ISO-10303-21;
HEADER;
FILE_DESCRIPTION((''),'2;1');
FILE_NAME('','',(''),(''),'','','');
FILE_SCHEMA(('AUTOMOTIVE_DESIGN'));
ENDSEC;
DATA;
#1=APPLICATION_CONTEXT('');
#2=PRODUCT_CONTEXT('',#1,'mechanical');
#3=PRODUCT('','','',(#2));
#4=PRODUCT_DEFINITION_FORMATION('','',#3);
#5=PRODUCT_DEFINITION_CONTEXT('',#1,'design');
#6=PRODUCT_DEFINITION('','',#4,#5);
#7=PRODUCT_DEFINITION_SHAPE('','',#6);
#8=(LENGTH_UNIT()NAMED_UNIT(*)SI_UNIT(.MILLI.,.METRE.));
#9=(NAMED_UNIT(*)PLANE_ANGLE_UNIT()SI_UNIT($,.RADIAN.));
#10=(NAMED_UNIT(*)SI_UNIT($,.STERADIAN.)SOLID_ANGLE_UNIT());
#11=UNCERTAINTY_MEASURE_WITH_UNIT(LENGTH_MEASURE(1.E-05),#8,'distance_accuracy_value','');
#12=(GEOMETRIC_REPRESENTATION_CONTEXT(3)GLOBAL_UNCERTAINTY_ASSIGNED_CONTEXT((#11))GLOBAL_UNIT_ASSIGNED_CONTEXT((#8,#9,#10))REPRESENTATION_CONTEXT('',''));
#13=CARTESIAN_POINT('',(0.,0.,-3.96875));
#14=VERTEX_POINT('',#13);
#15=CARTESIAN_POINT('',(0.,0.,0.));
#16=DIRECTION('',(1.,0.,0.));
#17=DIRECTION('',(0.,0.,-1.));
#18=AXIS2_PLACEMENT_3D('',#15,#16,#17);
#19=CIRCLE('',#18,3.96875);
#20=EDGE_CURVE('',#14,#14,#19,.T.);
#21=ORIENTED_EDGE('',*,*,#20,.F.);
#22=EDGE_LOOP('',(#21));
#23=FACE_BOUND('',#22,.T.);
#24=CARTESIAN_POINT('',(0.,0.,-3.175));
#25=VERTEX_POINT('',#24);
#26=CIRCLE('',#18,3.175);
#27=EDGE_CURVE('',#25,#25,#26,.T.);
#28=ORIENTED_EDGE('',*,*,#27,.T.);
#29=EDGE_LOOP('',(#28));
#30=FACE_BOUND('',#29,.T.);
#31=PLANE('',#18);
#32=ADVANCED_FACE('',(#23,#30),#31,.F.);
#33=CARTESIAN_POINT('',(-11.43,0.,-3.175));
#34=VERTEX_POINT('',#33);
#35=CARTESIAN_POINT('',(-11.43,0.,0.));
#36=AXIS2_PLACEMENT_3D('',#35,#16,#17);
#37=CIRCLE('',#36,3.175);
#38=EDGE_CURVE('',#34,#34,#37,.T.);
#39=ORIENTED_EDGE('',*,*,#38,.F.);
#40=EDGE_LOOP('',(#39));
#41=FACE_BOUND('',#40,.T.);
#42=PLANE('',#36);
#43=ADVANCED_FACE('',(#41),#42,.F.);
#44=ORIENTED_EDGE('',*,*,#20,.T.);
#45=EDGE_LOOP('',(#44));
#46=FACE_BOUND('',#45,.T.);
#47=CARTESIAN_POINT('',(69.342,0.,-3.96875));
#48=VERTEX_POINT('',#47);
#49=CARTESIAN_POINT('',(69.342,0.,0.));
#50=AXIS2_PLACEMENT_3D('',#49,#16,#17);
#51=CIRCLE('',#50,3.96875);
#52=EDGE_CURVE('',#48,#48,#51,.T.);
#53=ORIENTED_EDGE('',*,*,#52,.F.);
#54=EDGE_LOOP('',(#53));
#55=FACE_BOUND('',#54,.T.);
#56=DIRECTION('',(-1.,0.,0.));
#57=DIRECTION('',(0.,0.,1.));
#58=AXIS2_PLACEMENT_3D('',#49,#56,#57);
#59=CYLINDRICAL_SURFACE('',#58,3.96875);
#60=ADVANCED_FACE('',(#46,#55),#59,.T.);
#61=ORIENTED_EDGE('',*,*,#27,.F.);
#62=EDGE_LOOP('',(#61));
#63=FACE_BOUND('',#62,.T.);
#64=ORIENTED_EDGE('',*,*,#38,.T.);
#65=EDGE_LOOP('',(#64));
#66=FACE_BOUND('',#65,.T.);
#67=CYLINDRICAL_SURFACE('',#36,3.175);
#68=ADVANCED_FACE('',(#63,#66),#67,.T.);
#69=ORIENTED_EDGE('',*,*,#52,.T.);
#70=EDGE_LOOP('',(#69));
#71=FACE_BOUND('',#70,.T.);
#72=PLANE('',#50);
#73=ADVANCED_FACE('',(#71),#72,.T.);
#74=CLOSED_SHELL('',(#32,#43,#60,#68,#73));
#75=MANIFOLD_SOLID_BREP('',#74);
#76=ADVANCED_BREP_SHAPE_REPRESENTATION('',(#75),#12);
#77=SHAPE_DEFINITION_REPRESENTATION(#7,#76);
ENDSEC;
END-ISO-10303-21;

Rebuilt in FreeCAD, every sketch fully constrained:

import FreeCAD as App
import Part
import Sketcher
Q = App.Units.Quantity

doc = App.newDocument("Part")
body = doc.addObject("PartDesign::Body", "Body")

# Sketch on YZ plane
sketch1 = doc.addObject("Sketcher::SketchObject", "Sketch")
body.addObject(sketch1)
sketch1.AttachmentSupport = (doc.YZ_Plane, [""])
sketch1.MapMode = "FlatFace"
sketch1.addGeometry(Part.Circle(App.Vector(0, 0, 0), App.Vector(0, 0, 1), 4), False)
sketch1.addConstraint(Sketcher.Constraint("Coincident", 0, 3, -1, 1))
sketch1.addConstraint(Sketcher.Constraint("Diameter", 0, Q("0.3125 in")))
pad1 = doc.addObject("PartDesign::Pad", "Pad")
body.addObject(pad1)
pad1.Profile = sketch1
pad1.Length = Q("2.73 in")

# Sketch on YZ plane
sketch2 = doc.addObject("Sketcher::SketchObject", "Sketch001")
body.addObject(sketch2)
sketch2.AttachmentSupport = (doc.YZ_Plane, [""])
sketch2.MapMode = "FlatFace"
sketch2.addGeometry(Part.Circle(App.Vector(0, 0, 0), App.Vector(0, 0, 1), 3.2), False)
sketch2.addConstraint(Sketcher.Constraint("Coincident", 0, 3, -1, 1))
sketch2.addConstraint(Sketcher.Constraint("Diameter", 0, Q("0.25 in")))
pad2 = doc.addObject("PartDesign::Pad", "Pad001")
body.addObject(pad2)
pad2.Profile = sketch2
pad2.Length = Q("0.45 in")
pad2.Reversed = True

doc.recompute()
